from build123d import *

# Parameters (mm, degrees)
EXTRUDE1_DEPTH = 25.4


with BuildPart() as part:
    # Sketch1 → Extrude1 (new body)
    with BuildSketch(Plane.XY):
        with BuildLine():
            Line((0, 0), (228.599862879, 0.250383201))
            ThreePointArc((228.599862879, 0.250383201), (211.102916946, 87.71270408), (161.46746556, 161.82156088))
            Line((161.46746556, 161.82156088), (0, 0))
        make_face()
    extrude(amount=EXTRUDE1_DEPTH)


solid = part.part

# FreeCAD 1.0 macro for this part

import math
import FreeCAD as App
import Part
import Sketcher
Q = App.Units.Quantity

doc = App.newDocument("Part")
body = doc.addObject("PartDesign::Body", "Body")

# Sketch on XY plane
sketch1 = body.newObject("Sketcher::SketchObject", "Sketch")
sketch1.AttachmentSupport = (doc.getObject("XY_Plane"), [""])
sketch1.MapMode = "FlatFace"
sketch1.addGeometry([
    Part.LineSegment(App.Vector(0, 0, 0), App.Vector(228.599863, 0.250383, 0)),
    Part.ArcOfCircle(Part.Circle(App.Vector(0, 0, 0), App.Vector(0, 0, 1), 228.6), math.radians(0.062755), math.radians(45.062755)),
    Part.LineSegment(App.Vector(161.467466, 161.821561, 0), App.Vector(0, 0, 0)),
], False)
sketch1.addConstraint([
    Sketcher.Constraint("Coincident", 0, 2, 1, 1),
    Sketcher.Constraint("Coincident", 1, 2, 2, 1),
    Sketcher.Constraint("Coincident", 2, 2, 0, 1),
    Sketcher.Constraint("Coincident", 1, 3, -1, 1),
    Sketcher.Constraint("Coincident", 2, 2, -1, 1),
    Sketcher.Constraint("Radius", 1, Q("9 in")),
    Sketcher.Constraint("DistanceY", -1, 1, 1, 2, 161.821561),
    Sketcher.Constraint("DistanceY", -1, 1, 0, 2, 0.250383),
])
pad1 = body.newObject("PartDesign::Pad", "Pad")
pad1.Profile = sketch1
pad1.Length = Q("1 in")

doc.recompute()
